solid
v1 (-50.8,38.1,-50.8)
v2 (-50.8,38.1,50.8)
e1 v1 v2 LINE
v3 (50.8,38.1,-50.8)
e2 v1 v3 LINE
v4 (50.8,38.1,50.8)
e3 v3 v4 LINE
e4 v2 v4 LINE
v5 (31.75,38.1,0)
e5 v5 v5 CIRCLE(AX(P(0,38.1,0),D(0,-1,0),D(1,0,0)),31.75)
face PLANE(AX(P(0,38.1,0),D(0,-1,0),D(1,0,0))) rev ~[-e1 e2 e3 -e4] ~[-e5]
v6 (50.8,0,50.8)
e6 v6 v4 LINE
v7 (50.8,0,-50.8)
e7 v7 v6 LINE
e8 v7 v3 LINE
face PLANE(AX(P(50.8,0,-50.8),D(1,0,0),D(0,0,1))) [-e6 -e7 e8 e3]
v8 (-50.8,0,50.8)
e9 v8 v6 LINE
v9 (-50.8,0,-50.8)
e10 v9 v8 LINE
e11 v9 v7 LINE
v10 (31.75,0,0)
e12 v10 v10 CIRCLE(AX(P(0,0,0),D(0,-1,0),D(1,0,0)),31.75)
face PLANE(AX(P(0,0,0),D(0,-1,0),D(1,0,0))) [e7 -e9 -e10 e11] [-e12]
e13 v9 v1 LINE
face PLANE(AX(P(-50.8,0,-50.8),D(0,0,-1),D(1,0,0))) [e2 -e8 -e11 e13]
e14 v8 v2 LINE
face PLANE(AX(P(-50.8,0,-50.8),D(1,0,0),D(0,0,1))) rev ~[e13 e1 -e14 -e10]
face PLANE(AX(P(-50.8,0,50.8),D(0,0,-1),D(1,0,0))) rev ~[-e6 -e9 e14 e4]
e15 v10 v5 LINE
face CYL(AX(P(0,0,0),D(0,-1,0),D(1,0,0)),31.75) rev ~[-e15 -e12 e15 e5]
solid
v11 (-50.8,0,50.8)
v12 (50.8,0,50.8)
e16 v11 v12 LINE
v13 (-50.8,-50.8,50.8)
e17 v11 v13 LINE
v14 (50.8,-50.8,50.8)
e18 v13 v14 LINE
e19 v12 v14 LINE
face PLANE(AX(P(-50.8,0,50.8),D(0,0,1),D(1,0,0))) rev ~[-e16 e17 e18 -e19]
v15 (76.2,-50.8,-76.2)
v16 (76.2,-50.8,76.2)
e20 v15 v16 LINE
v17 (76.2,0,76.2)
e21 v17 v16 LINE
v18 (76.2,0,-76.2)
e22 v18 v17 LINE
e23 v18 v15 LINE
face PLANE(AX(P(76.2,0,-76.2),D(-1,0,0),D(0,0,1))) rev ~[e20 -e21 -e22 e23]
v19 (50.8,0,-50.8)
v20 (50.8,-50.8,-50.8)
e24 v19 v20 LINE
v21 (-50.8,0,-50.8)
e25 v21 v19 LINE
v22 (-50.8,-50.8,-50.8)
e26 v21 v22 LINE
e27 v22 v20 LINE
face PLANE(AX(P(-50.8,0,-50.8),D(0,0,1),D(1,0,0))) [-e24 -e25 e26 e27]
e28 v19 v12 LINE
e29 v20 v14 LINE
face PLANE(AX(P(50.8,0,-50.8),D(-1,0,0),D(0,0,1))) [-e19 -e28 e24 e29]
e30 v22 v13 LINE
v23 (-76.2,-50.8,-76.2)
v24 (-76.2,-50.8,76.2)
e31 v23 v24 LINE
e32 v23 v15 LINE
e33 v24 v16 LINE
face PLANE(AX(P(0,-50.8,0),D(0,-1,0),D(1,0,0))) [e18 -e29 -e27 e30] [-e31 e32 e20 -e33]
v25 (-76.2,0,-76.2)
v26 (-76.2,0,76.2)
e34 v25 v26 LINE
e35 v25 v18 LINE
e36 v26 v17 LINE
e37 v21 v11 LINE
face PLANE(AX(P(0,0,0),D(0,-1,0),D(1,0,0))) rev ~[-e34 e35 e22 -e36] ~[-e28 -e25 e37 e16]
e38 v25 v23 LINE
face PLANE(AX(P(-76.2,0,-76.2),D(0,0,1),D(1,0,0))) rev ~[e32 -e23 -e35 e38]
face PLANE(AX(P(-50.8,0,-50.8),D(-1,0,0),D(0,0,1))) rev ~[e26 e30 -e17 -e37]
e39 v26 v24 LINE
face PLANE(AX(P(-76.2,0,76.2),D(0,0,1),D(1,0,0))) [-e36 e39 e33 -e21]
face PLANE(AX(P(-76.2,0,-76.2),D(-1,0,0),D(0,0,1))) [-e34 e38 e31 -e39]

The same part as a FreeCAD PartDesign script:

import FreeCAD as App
import Part
import Sketcher
Q = App.Units.Quantity

doc = App.newDocument("Part")
body = doc.addObject("PartDesign::Body", "Body")

sketch1 = body.newObject("Sketcher::SketchObject", "Sketch")
sketch1.AttachmentSupport = (doc.getObject("XZ_Plane"), [""])
sketch1.MapMode = "FlatFace"
sketch1.addGeometry(Part.LineSegment(App.Vector(-51, 51, 0), App.Vector(-51, -51, 0)), False)
sketch1.addGeometry(Part.LineSegment(App.Vector(-51, -51, 0), App.Vector(51, -51, 0)), False)
sketch1.addGeometry(Part.LineSegment(App.Vector(51, -51, 0), App.Vector(51, 51, 0)), False)
sketch1.addGeometry(Part.LineSegment(App.Vector(51, 51, 0), App.Vector(-51, 51, 0)), False)
sketch1.addGeometry(Part.Circle(App.Vector(0, 0, 0), App.Vector(0, 0, 1), 32), False)
sketch1.addConstraint(Sketcher.Constraint("Coincident", 0, 2, 1, 1))
sketch1.addConstraint(Sketcher.Constraint("Coincident", 1, 2, 2, 1))
sketch1.addConstraint(Sketcher.Constraint("Coincident", 2, 2, 3, 1))
sketch1.addConstraint(Sketcher.Constraint("Coincident", 3, 2, 0, 1))
sketch1.addConstraint(Sketcher.Constraint("Vertical", 0))
sketch1.addConstraint(Sketcher.Constraint("Horizontal", 1))
sketch1.addConstraint(Sketcher.Constraint("Vertical", 2))
sketch1.addConstraint(Sketcher.Constraint("Horizontal", 3))
sketch1.addConstraint(Sketcher.Constraint("Coincident", 4, 3, -1, 1))
sketch1.addConstraint(Sketcher.Constraint("Symmetric", 0, 2, 2, 2, -1, 1))
sketch1.addConstraint(Sketcher.Constraint("Equal", 3, 0))
sketch1.addConstraint(Sketcher.Constraint("Diameter", 4, Q("2.5 in")))
sketch1.addConstraint(Sketcher.Constraint("DistanceX", 1, 1, 1, 2, Q("4 in")))
pad1 = body.newObject("PartDesign::Pad", "Pad")
pad1.Profile = sketch1
pad1.Length = Q("1.5 in")
pad1.Reversed = True
body2 = doc.addObject("PartDesign::Body", "Body001")

sketch2 = body2.newObject("Sketcher::SketchObject", "Sketch001")
sketch2.AttachmentSupport = (doc.getObject("XZ_Plane001"), [""])
sketch2.MapMode = "FlatFace"
sketch2.addGeometry(Part.LineSegment(App.Vector(-76, 76, 0), App.Vector(-76, -76, 0)), False)
sketch2.addGeometry(Part.LineSegment(App.Vector(-76, -76, 0), App.Vector(76, -76, 0)), False)
sketch2.addGeometry(Part.LineSegment(App.Vector(76, -76, 0), App.Vector(76, 76, 0)), False)
sketch2.addGeometry(Part.LineSegment(App.Vector(76, 76, 0), App.Vector(-76, 76, 0)), False)
sketch2.addGeometry(Part.LineSegment(App.Vector(51, -51, 0), App.Vector(-51, -51, 0)), False)
sketch2.addGeometry(Part.LineSegment(App.Vector(-51, -51, 0), App.Vector(-51, 51, 0)), False)
sketch2.addGeometry(Part.LineSegment(App.Vector(-51, 51, 0), App.Vector(51, 51, 0)), False)
sketch2.addGeometry(Part.LineSegment(App.Vector(51, 51, 0), App.Vector(51, -51, 0)), False)
sketch2.addConstraint(Sketcher.Constraint("Coincident", 0, 2, 1, 1))
sketch2.addConstraint(Sketcher.Constraint("Coincident", 1, 2, 2, 1))
sketch2.addConstraint(Sketcher.Constraint("Coincident", 2, 2, 3, 1))
sketch2.addConstraint(Sketcher.Constraint("Coincident", 3, 2, 0, 1))
sketch2.addConstraint(Sketcher.Constraint("Coincident", 4, 2, 5, 1))
sketch2.addConstraint(Sketcher.Constraint("Coincident", 5, 2, 6, 1))
sketch2.addConstraint(Sketcher.Constraint("Coincident", 6, 2, 7, 1))
sketch2.addConstraint(Sketcher.Constraint("Coincident", 7, 2, 4, 1))
sketch2.addConstraint(Sketcher.Constraint("Vertical", 0))
sketch2.addConstraint(Sketcher.Constraint("Horizontal", 1))
sketch2.addConstraint(Sketcher.Constraint("Vertical", 2))
sketch2.addConstraint(Sketcher.Constraint("Horizontal", 3))
sketch2.addConstraint(Sketcher.Constraint("Horizontal", 4))
sketch2.addConstraint(Sketcher.Constraint("Vertical", 5))
sketch2.addConstraint(Sketcher.Constraint("Horizontal", 6))
sketch2.addConstraint(Sketcher.Constraint("Vertical", 7))
sketch2.addConstraint(Sketcher.Constraint("Symmetric", 0, 2, 2, 2, -1, 1))
sketch2.addConstraint(Sketcher.Constraint("Symmetric", 4, 2, 6, 2, -1, 1))
sketch2.addConstraint(Sketcher.Constraint("Equal", 3, 0))
sketch2.addConstraint(Sketcher.Constraint("Equal", 6, 5))
sketch2.addConstraint(Sketcher.Constraint("DistanceX", 1, 1, 1, 2, Q("6 in")))
sketch2.addConstraint(Sketcher.Constraint("DistanceX", 4, 2, 4, 1, Q("4 in")))
pad2 = body2.newObject("PartDesign::Pad", "Pad001")
pad2.Profile = sketch2
pad2.Length = Q("2 in")

doc.recompute()
